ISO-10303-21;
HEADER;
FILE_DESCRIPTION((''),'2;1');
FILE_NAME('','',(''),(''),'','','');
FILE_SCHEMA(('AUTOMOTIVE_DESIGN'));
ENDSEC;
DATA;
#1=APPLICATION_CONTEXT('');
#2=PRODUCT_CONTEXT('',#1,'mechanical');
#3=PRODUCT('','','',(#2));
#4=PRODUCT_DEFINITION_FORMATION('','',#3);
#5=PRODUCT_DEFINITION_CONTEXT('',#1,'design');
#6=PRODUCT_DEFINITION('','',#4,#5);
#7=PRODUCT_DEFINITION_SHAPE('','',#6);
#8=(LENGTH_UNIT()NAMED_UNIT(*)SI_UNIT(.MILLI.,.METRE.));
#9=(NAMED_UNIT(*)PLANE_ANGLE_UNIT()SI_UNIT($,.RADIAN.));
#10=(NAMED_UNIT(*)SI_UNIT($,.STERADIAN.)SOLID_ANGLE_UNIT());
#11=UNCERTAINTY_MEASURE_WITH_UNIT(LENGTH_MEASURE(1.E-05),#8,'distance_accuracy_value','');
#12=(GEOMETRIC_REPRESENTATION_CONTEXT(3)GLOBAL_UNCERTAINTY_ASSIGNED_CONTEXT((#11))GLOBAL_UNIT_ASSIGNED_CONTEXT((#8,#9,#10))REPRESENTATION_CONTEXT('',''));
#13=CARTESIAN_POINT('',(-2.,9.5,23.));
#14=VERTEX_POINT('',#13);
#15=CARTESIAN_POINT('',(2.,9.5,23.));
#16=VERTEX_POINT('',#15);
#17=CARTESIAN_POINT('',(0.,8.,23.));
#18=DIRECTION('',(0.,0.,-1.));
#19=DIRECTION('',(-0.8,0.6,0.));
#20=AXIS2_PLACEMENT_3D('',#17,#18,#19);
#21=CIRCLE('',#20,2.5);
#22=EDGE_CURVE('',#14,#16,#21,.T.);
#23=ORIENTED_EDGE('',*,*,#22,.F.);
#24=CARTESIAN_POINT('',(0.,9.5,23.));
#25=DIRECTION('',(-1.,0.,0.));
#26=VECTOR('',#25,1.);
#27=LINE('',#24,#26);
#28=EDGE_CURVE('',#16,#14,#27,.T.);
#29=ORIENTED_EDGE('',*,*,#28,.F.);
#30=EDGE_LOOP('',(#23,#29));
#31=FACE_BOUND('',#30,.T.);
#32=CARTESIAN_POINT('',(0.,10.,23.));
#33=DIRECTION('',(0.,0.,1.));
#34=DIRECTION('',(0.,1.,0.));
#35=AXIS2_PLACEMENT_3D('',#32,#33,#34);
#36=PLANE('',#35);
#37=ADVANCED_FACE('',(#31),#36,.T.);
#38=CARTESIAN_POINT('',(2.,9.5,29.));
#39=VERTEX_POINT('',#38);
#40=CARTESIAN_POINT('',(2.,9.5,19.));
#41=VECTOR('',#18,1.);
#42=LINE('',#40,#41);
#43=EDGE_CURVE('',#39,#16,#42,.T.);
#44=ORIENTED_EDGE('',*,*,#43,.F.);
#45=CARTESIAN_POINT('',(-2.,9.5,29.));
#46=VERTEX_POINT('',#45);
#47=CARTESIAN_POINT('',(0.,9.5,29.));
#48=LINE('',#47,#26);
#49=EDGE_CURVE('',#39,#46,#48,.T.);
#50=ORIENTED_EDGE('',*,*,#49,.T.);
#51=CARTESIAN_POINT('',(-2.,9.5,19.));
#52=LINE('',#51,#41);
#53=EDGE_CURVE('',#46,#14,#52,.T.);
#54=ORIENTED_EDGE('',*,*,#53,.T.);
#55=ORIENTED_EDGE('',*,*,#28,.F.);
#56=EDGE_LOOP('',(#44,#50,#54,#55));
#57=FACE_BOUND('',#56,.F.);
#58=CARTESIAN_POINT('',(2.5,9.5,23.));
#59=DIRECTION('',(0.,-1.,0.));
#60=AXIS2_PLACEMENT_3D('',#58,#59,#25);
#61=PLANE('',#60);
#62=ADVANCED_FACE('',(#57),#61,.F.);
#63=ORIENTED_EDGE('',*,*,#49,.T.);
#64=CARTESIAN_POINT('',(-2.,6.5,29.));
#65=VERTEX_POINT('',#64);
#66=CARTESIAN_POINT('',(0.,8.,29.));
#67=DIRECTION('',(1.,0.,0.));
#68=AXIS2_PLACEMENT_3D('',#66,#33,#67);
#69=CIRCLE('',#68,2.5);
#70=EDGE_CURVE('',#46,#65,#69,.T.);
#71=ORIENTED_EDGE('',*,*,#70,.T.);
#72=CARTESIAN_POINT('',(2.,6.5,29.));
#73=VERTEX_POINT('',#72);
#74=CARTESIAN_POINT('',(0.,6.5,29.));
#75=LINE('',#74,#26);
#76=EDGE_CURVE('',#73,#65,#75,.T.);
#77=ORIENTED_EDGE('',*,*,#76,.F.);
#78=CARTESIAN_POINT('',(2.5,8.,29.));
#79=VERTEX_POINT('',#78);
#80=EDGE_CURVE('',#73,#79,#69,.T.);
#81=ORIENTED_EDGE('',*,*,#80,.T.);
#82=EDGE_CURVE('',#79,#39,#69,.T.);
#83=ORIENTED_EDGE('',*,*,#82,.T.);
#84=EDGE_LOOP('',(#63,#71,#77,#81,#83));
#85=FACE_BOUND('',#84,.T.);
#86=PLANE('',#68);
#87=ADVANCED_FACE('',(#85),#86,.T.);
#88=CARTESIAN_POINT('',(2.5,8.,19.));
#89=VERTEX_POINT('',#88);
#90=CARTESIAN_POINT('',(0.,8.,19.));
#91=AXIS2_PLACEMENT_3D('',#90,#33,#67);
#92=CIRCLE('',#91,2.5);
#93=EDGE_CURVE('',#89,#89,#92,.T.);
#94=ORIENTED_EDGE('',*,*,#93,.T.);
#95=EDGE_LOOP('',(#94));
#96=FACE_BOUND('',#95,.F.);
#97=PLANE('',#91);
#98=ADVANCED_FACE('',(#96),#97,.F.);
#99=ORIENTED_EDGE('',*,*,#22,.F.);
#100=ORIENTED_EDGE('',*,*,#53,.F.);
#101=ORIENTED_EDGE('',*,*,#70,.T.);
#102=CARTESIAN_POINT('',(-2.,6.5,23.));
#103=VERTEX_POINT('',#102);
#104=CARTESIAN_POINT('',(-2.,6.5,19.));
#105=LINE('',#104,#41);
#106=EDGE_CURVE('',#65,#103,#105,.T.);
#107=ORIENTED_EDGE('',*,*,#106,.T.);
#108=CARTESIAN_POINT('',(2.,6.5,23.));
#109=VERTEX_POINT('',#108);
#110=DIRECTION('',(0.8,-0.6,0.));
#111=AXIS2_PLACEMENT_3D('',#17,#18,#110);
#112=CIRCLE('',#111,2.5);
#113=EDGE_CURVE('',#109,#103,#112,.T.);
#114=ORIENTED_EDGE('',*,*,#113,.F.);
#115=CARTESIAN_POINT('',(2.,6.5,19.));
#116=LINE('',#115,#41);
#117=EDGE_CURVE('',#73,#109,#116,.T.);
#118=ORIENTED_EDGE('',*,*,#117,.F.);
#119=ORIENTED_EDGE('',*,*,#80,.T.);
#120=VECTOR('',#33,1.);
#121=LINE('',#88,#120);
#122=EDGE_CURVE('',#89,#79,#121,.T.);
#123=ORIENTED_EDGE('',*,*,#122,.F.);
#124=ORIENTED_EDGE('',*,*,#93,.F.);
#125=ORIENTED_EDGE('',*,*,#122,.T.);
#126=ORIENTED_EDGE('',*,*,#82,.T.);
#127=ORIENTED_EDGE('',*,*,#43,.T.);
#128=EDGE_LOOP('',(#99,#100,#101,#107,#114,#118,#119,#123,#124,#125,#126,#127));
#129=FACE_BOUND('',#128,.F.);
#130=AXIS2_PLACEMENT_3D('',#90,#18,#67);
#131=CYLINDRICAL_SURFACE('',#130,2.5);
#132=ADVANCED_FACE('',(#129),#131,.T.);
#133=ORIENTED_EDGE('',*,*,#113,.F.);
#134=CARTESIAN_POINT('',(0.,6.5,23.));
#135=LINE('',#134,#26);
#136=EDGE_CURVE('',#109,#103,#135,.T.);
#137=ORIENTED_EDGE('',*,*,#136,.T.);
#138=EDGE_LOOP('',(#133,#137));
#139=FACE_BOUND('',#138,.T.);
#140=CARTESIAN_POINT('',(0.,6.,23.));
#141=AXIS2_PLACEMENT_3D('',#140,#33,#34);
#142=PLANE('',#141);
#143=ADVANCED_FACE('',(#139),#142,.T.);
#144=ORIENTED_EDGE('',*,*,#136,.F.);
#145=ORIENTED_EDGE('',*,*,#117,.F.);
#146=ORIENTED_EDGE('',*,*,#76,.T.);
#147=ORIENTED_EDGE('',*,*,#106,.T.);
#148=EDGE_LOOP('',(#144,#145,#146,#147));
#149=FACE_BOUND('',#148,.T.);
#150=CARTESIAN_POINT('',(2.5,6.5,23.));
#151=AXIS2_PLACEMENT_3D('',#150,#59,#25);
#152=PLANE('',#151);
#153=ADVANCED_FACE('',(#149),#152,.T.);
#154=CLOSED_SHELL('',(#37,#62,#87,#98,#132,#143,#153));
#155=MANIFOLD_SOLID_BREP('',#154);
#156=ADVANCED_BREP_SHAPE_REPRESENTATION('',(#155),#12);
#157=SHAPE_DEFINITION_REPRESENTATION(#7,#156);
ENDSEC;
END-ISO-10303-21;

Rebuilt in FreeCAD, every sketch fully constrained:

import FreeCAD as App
import Part
import Sketcher


def add_polygon(sketch, points):
    """Adds a closed chain of lines whose ends are joined by coincident constraints."""
    first, n = sketch.GeometryCount, len(points)
    for a, b in zip(points, points[1:] + points[:1]):
        sketch.addGeometry(Part.LineSegment(App.Vector(*a, 0), App.Vector(*b, 0)), False)
    for i in range(n):
        sketch.addConstraint(Sketcher.Constraint("Coincident", first + i, 2, first + (i + 1) % n, 1))

doc = App.newDocument("Part")
params = doc.addObject("Spreadsheet::Sheet", "Params")
for row, (alias, value) in enumerate([
    ("sketch1_width", "1 mm"),
    ("sketch1_height", "5 mm"),
    ("pad1_length", "6 mm"),
    ("sketch2_width", "1 mm"),
    ("sketch2_height", "5 mm"),
    ("pad2_length", "6 mm"),
    ("sketch3_diameter", "5 mm"),
    ("pad3_length", "10 mm"),
], start=1):
    params.set(f"A{row}", alias)
    params.set(f"B{row}", "=" + value)
    params.setAlias(f"B{row}", alias)

body = doc.addObject("PartDesign::Body", "Body")

sketch1 = body.newObject("Sketcher::SketchObject", "Sketch")
sketch1.AttachmentSupport = (doc.getObject("XY_Plane"), [""])
sketch1.MapMode = "FlatFace"
add_polygon(sketch1, [(0, 5), (0, 0), (1, 0), (1, 5)])
sketch1.addConstraint(Sketcher.Constraint("Vertical", 0))
sketch1.addConstraint(Sketcher.Constraint("Horizontal", 1))
sketch1.addConstraint(Sketcher.Constraint("Vertical", 2))
sketch1.addConstraint(Sketcher.Constraint("Horizontal", 3))
sketch1.addConstraint(Sketcher.Constraint("Coincident", 0, 2, -1, 1))
sketch1.addConstraint(Sketcher.Constraint("DistanceX", 1, 1, 1, 2, 1.0))
sketch1.addConstraint(Sketcher.Constraint("DistanceY", 0, 2, 0, 1, 5.0))
sketch1.setExpression("Constraints[9]", "Params.sketch1_width")
sketch1.setExpression("Constraints[10]", "Params.sketch1_height")
pad1 = body.newObject("PartDesign::Pad", "Pad")
pad1.Profile = sketch1
pad1.setExpression("Length", "Params.pad1_length")
body2 = doc.addObject("PartDesign::Body", "Body001")
doc.recompute()

body.Placement = App.Placement(App.Vector(2.5, -2.5, 4), App.Rotation(App.Vector(0, 0, 1), 90))
boolean = body2.newObject("PartDesign::Boolean", "Boolean")
boolean.Type = "Fuse"
boolean.addObjects([body])
body3 = doc.addObject("PartDesign::Body", "Body002")

sketch2 = body3.newObject("Sketcher::SketchObject", "Sketch001")
sketch2.AttachmentSupport = (doc.getObject("XY_Plane002"), [""])
sketch2.MapMode = "FlatFace"
add_polygon(sketch2, [(0, 5), (0, 0), (1, 0), (1, 5)])
sketch2.addConstraint(Sketcher.Constraint("Vertical", 0))
sketch2.addConstraint(Sketcher.Constraint("Horizontal", 1))
sketch2.addConstraint(Sketcher.Constraint("Vertical", 2))
sketch2.addConstraint(Sketcher.Constraint("Horizontal", 3))
sketch2.addConstraint(Sketcher.Constraint("Coincident", 0, 2, -1, 1))
sketch2.addConstraint(Sketcher.Constraint("DistanceX", 1, 1, 1, 2, 1.0))
sketch2.addConstraint(Sketcher.Constraint("DistanceY", 0, 2, 0, 1, 5.0))
sketch2.setExpression("Constraints[9]", "Params.sketch2_width")
sketch2.setExpression("Constraints[10]", "Params.sketch2_height")
pad2 = body3.newObject("PartDesign::Pad", "Pad001")
pad2.Profile = sketch2
pad2.setExpression("Length", "Params.pad2_length")
body4 = doc.addObject("PartDesign::Body", "Body003")
body4.AllowCompound = True
doc.recompute()

body3.Placement = App.Placement(App.Vector(2.5, 1.5, 4), App.Rotation(App.Vector(0, 0, 1), 90))
boolean2 = body4.newObject("PartDesign::Boolean", "Boolean001")
boolean2.Type = "Fuse"
boolean2.addObjects([body3])
doc.recompute()

boolean3 = body4.newObject("PartDesign::Boolean", "Boolean002")
boolean3.Type = "Fuse"
boolean3.addObjects([body2])
body5 = doc.addObject("PartDesign::Body", "Body004")

sketch3 = body5.newObject("Sketcher::SketchObject", "Sketch002")
sketch3.AttachmentSupport = (doc.getObject("XY_Plane004"), [""])
sketch3.MapMode = "FlatFace"
sketch3.addGeometry(Part.Circle(App.Vector(0, 0, 0), App.Vector(0, 0, 1), 2.5), False)
sketch3.addConstraint(Sketcher.Constraint("Coincident", 0, 3, -1, 1))
sketch3.addConstraint(Sketcher.Constraint("Diameter", 0, 5.0))
sketch3.setExpression("Constraints[1]", "Params.sketch3_diameter")
pad3 = body5.newObject("PartDesign::Pad", "Pad002")
pad3.Profile = sketch3
pad3.setExpression("Length", "Params.pad3_length")
doc.recompute()

boolean4 = body5.newObject("PartDesign::Boolean", "Boolean003")
boolean4.Type = "Cut"
boolean4.addObjects([body4])
body6 = doc.addObject("PartDesign::Body", "Body005")
doc.recompute()

body5.Placement = App.Placement(App.Vector(0, 8, 19), App.Rotation(App.Vector(0, 0, 1), 0))
boolean5 = body6.newObject("PartDesign::Boolean", "Boolean004")
boolean5.Type = "Fuse"
boolean5.addObjects([body5])

doc.recompute()
